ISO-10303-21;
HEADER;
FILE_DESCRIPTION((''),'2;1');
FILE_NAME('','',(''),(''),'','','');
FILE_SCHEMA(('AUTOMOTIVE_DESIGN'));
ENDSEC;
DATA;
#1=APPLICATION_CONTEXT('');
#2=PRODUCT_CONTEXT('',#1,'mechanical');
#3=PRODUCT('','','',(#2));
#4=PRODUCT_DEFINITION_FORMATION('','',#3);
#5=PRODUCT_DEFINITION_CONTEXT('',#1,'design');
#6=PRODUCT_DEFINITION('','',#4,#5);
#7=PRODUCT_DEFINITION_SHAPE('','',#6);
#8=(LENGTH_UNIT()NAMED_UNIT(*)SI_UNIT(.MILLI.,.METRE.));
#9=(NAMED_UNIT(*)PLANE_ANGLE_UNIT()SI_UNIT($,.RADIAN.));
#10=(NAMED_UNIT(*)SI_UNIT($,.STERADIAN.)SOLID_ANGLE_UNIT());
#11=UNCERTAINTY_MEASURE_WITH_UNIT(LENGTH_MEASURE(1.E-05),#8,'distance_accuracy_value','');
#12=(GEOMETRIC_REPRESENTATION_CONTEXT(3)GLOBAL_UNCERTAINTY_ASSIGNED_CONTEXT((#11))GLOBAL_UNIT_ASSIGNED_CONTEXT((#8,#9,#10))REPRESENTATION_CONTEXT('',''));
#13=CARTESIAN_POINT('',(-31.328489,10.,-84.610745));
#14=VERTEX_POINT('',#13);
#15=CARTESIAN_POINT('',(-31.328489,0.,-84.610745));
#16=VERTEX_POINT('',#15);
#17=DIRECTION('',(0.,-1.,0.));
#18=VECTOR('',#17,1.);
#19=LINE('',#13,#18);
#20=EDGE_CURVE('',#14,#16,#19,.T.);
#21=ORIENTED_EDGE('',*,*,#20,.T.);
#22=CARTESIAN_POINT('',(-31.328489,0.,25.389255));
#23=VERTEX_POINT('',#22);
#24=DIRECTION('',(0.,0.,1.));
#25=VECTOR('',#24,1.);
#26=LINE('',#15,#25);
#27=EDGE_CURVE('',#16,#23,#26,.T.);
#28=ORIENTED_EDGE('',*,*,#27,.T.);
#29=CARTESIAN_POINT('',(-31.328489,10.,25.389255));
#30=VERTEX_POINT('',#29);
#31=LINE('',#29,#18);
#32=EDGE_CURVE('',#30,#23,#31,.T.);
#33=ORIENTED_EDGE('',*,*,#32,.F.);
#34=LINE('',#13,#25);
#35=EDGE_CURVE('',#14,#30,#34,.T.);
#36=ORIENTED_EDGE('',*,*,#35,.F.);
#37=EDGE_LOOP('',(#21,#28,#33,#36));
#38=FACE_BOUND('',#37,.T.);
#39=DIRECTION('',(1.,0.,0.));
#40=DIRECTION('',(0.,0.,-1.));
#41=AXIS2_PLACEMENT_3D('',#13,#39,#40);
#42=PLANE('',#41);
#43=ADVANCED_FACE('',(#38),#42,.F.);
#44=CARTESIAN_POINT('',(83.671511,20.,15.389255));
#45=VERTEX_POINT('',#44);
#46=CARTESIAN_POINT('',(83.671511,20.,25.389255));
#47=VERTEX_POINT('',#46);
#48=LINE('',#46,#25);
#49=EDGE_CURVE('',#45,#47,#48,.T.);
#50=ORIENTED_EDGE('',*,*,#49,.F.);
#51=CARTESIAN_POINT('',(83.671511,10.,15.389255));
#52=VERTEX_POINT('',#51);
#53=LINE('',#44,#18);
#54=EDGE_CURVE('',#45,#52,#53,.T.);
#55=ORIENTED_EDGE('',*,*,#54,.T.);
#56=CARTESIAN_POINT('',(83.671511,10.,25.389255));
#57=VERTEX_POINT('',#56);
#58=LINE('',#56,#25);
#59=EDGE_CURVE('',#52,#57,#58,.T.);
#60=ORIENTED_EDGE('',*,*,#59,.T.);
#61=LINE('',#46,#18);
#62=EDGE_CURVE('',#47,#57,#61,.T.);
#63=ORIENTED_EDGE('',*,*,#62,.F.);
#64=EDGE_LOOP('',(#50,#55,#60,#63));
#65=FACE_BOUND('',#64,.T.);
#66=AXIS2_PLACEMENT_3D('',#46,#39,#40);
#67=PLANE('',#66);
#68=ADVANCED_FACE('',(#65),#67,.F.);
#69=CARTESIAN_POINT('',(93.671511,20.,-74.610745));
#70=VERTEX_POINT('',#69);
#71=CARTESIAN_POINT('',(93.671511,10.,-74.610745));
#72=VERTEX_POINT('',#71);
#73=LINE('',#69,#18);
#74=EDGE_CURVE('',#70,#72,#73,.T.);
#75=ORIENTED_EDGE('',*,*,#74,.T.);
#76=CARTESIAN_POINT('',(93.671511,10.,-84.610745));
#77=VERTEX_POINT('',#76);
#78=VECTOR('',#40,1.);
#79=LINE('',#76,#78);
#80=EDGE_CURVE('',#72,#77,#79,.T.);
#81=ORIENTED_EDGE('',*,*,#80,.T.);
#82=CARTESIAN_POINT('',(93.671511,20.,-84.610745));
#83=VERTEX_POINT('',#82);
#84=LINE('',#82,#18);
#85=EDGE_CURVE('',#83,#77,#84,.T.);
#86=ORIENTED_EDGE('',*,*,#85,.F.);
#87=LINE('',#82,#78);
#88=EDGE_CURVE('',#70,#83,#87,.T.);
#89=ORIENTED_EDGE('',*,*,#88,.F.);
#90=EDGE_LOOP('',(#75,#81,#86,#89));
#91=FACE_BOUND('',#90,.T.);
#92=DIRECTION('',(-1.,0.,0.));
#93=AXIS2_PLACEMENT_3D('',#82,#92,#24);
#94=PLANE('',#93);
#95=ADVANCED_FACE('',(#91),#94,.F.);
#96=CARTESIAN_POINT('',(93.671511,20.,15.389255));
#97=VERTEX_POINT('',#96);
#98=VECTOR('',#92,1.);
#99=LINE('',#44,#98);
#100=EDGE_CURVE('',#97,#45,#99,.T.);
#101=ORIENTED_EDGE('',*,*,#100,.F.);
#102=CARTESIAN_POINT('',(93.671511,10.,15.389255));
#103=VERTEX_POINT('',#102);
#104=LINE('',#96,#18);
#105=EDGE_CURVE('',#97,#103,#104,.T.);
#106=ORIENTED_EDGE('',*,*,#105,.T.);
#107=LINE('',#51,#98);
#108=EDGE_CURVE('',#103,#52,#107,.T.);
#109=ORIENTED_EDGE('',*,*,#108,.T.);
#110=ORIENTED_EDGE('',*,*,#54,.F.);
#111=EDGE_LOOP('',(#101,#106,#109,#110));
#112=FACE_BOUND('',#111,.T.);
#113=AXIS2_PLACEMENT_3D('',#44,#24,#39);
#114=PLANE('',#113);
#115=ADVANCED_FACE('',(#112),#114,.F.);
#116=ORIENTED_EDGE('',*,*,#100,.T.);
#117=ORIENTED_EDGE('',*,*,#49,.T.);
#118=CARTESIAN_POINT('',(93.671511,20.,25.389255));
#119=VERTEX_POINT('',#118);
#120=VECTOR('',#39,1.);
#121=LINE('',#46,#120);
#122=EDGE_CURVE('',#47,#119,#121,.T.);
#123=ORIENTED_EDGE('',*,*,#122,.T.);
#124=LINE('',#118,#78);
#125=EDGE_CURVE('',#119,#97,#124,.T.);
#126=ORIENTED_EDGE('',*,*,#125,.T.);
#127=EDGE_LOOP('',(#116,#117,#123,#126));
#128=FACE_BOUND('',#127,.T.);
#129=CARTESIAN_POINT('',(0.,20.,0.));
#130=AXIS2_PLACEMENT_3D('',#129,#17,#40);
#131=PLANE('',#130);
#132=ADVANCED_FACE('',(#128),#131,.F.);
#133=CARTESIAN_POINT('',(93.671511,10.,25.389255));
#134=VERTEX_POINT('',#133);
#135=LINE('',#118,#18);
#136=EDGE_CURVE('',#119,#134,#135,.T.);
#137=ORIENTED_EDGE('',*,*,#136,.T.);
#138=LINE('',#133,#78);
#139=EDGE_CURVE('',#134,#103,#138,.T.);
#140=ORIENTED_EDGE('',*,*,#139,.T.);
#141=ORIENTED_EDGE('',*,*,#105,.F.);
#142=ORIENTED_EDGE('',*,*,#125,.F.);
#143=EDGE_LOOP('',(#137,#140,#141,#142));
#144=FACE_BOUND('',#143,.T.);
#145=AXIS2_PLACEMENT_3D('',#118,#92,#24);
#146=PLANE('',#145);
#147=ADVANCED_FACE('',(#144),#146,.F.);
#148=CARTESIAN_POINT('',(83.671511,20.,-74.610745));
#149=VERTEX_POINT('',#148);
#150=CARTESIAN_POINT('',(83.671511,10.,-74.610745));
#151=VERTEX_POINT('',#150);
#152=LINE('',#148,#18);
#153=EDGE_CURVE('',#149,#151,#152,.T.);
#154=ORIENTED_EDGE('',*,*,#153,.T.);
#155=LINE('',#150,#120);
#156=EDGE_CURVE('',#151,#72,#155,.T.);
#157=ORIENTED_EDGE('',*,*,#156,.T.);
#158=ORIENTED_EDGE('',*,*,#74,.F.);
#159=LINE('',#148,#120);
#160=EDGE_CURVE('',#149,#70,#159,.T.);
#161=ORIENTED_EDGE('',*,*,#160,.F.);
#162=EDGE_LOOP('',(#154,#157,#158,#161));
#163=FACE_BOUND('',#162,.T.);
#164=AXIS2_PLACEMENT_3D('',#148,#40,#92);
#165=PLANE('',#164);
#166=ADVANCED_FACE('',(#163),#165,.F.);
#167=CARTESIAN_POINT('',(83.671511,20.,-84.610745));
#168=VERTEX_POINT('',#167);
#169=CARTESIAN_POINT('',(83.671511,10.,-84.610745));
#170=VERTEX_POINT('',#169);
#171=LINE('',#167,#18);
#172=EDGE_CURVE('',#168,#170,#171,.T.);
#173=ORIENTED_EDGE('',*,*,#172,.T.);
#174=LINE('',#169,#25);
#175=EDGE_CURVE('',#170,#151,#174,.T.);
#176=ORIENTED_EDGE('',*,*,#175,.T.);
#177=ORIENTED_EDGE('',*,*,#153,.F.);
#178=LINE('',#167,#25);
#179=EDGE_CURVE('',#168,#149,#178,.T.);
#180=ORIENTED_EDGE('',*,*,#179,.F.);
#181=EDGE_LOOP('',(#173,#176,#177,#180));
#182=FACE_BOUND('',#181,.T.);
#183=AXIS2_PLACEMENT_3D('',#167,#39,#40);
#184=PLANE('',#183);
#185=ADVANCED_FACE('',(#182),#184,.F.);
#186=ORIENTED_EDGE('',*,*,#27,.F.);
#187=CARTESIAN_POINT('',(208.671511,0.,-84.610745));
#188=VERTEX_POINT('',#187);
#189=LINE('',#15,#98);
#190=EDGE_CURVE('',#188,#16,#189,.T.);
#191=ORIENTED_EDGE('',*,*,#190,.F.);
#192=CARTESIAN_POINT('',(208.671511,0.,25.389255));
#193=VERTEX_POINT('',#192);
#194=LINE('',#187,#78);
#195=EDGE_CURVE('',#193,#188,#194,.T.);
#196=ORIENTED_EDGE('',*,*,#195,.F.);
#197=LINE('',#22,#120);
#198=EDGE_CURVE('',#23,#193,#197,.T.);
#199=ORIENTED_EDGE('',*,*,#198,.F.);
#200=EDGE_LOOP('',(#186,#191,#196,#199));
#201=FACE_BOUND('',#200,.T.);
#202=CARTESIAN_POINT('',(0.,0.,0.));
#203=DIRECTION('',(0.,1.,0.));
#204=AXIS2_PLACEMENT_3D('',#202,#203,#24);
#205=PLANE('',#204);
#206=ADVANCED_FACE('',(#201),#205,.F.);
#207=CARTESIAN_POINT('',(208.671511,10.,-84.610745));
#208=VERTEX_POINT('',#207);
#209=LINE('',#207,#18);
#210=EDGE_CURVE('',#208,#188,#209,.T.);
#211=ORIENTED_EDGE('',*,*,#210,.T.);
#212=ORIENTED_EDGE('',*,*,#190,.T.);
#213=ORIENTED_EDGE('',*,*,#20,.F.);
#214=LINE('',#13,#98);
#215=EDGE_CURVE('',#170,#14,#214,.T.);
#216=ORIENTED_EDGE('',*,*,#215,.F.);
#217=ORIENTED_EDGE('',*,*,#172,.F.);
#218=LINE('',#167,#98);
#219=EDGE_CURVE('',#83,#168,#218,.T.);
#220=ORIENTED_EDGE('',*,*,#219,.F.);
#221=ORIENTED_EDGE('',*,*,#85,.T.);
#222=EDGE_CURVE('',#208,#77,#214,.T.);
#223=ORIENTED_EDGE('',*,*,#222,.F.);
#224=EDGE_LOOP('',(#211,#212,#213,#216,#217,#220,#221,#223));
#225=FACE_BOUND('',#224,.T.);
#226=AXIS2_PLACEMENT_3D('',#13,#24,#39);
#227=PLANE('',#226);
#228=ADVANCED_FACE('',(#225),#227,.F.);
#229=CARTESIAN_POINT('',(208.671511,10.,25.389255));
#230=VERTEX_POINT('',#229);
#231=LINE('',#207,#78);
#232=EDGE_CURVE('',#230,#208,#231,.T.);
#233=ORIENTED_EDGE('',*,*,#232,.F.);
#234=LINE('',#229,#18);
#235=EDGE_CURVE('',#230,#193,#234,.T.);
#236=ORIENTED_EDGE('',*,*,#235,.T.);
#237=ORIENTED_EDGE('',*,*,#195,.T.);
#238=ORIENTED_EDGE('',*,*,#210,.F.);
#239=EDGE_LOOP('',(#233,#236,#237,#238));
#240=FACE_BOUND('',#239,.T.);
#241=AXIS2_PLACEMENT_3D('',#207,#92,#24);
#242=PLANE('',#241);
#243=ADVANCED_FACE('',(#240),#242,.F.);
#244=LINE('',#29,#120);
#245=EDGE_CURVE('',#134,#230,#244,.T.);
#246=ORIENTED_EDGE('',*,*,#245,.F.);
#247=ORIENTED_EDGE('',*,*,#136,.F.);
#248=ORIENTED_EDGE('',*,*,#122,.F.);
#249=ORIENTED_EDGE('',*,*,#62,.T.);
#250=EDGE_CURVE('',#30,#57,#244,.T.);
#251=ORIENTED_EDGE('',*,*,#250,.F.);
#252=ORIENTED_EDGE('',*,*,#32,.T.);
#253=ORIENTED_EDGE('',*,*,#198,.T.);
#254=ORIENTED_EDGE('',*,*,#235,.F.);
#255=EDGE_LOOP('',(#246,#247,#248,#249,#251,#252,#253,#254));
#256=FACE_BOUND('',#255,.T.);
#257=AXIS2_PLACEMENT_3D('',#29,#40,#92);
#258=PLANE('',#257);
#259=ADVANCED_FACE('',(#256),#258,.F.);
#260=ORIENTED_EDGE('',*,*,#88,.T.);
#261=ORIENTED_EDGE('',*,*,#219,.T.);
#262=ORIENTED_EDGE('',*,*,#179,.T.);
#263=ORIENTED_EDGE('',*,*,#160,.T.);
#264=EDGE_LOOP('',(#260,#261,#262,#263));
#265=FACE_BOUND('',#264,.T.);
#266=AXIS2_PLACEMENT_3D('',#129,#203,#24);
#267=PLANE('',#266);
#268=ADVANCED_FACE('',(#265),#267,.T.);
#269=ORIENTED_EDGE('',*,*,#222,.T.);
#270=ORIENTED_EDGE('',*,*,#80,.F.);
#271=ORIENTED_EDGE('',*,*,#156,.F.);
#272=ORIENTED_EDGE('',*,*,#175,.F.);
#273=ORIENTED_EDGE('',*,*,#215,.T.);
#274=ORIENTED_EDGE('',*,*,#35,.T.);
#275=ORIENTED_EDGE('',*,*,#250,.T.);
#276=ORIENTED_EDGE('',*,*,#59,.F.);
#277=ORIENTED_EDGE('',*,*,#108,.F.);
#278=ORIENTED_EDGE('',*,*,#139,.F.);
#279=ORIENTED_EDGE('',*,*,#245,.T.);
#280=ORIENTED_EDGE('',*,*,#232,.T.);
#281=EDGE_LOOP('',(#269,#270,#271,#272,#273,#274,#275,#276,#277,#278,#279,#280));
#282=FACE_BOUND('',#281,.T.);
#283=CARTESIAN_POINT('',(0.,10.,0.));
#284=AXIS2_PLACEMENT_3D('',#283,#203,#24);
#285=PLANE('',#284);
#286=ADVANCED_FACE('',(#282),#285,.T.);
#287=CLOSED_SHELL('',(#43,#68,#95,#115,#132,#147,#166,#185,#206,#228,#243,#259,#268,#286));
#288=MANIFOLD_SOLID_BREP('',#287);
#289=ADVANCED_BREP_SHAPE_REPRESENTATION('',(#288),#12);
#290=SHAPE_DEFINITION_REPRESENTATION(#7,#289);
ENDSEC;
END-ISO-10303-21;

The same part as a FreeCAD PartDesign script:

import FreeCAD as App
import Part
import Sketcher
from FreeCAD import Vector

doc = App.newDocument("Part")
params = doc.addObject("Spreadsheet::Sheet", "Params")
for row, (alias, value) in enumerate([
    ("sketch1_width", "240 mm"),
    ("sketch1_height", "110 mm"),
    ("pad1_length", "10 mm"),
    ("sketch2_width", "10 mm"),
    ("pad2_length", "10 mm"),
], start=1):
    params.set(f"A{row}", alias)
    params.set(f"B{row}", "=" + value)
    params.setAlias(f"B{row}", alias)

body = doc.addObject("PartDesign::Body", "Body")

# Sketch on XZ plane
sketch1 = body.newObject("Sketcher::SketchObject", "Sketch")
sketch1.AttachmentSupport = (doc.getObject("XZ_Plane"), [""])
sketch1.MapMode = "FlatFace"
sketch1.addGeometry(Part.LineSegment(Vector(-31.328489, -84.610745, 0), Vector(-31.328489, 25.389255, 0)), False)
sketch1.addGeometry(Part.LineSegment(Vector(-31.328489, 25.389255, 0), Vector(208.671511, 25.389255, 0)), False)
sketch1.addGeometry(Part.LineSegment(Vector(208.671511, 25.389255, 0), Vector(208.671511, -84.610745, 0)), False)
sketch1.addGeometry(Part.LineSegment(Vector(208.671511, -84.610745, 0), Vector(-31.328489, -84.610745, 0)), False)
sketch1.addConstraint(Sketcher.Constraint("Coincident", 0, 2, 1, 1))
sketch1.addConstraint(Sketcher.Constraint("Coincident", 1, 2, 2, 1))
sketch1.addConstraint(Sketcher.Constraint("Coincident", 2, 2, 3, 1))
sketch1.addConstraint(Sketcher.Constraint("Coincident", 3, 2, 0, 1))
sketch1.addConstraint(Sketcher.Constraint("Vertical", 0))
sketch1.addConstraint(Sketcher.Constraint("Horizontal", 1))
sketch1.addConstraint(Sketcher.Constraint("Vertical", 2))
sketch1.addConstraint(Sketcher.Constraint("Horizontal", 3))
sketch1.addConstraint(Sketcher.Constraint("DistanceX", 1, 1, 1, 2, 240.0))
sketch1.addConstraint(Sketcher.Constraint("DistanceY", 0, 1, 0, 2, 110.0))
sketch1.addConstraint(Sketcher.Constraint("DistanceX", 0, 2, -1, 1, 31.328489))
sketch1.addConstraint(Sketcher.Constraint("DistanceY", -1, 1, 0, 2, 25.389255))
sketch1.setExpression("Constraints[8]", "Params.sketch1_width")
sketch1.setExpression("Constraints[9]", "Params.sketch1_height")
pad1 = body.newObject("PartDesign::Pad", "Pad")
pad1.Profile = sketch1
pad1.setExpression("Length", "Params.pad1_length")
pad1.Reversed = True

# Sketch on XZ plane
sketch2 = body.newObject("Sketcher::SketchObject", "Sketch001")
sketch2.AttachmentSupport = (doc.getObject("XZ_Plane"), [""])
sketch2.MapMode = "FlatFace"
sketch2.AttachmentOffset = App.Placement(Vector(0, 0, -10), App.Rotation())
sketch2.addGeometry(Part.LineSegment(Vector(83.671511, 15.389255, 0), Vector(83.671511, 25.389255, 0)), False)
sketch2.addGeometry(Part.LineSegment(Vector(83.671511, 25.389255, 0), Vector(93.671511, 25.389255, 0)), False)
sketch2.addGeometry(Part.LineSegment(Vector(93.671511, 25.389255, 0), Vector(93.671511, 15.389255, 0)), False)
sketch2.addGeometry(Part.LineSegment(Vector(93.671511, 15.389255, 0), Vector(83.671511, 15.389255, 0)), False)
sketch2.addGeometry(Part.LineSegment(Vector(83.671511, -84.610745, 0), Vector(83.671511, -74.610745, 0)), False)
sketch2.addGeometry(Part.LineSegment(Vector(83.671511, -74.610745, 0), Vector(93.671511, -74.610745, 0)), False)
sketch2.addGeometry(Part.LineSegment(Vector(93.671511, -74.610745, 0), Vector(93.671511, -84.610745, 0)), False)
sketch2.addGeometry(Part.LineSegment(Vector(93.671511, -84.610745, 0), Vector(83.671511, -84.610745, 0)), False)
sketch2.addConstraint(Sketcher.Constraint("Coincident", 0, 2, 1, 1))
sketch2.addConstraint(Sketcher.Constraint("Coincident", 1, 2, 2, 1))
sketch2.addConstraint(Sketcher.Constraint("Coincident", 2, 2, 3, 1))
sketch2.addConstraint(Sketcher.Constraint("Coincident", 3, 2, 0, 1))
sketch2.addConstraint(Sketcher.Constraint("Coincident", 4, 2, 5, 1))
sketch2.addConstraint(Sketcher.Constraint("Coincident", 5, 2, 6, 1))
sketch2.addConstraint(Sketcher.Constraint("Coincident", 6, 2, 7, 1))
sketch2.addConstraint(Sketcher.Constraint("Coincident", 7, 2, 4, 1))
sketch2.addConstraint(Sketcher.Constraint("Vertical", 0))
sketch2.addConstraint(Sketcher.Constraint("Horizontal", 1))
sketch2.addConstraint(Sketcher.Constraint("Vertical", 2))
sketch2.addConstraint(Sketcher.Constraint("Horizontal", 3))
sketch2.addConstraint(Sketcher.Constraint("Vertical", 4))
sketch2.addConstraint(Sketcher.Constraint("Horizontal", 5))
sketch2.addConstraint(Sketcher.Constraint("Vertical", 6))
sketch2.addConstraint(Sketcher.Constraint("Horizontal", 7))
sketch2.addConstraint(Sketcher.Constraint("Vertical", 3, 2, 4, 2))
sketch2.addConstraint(Sketcher.Constraint("Vertical", 2, 2, 5, 2))
sketch2.addConstraint(Sketcher.Constraint("Equal", 7, 0))
sketch2.addConstraint(Sketcher.Constraint("Equal", 2, 4))
sketch2.addConstraint(Sketcher.Constraint("DistanceX", 1, 1, 1, 2, 10.0))
sketch2.addConstraint(Sketcher.Constraint("DistanceY", 4, 2, 3, 2, 90.0))
sketch2.addConstraint(Sketcher.Constraint("DistanceX", -1, 1, 0, 2, 83.671511))
sketch2.addConstraint(Sketcher.Constraint("DistanceY", -1, 1, 0, 2, 25.389255))
sketch2.setExpression("Constraints[20]", "Params.sketch2_width")
pad2 = body.newObject("PartDesign::Pad", "Pad001")
pad2.Profile = sketch2
pad2.setExpression("Length", "Params.pad2_length")
pad2.Reversed = True

doc.recompute()
